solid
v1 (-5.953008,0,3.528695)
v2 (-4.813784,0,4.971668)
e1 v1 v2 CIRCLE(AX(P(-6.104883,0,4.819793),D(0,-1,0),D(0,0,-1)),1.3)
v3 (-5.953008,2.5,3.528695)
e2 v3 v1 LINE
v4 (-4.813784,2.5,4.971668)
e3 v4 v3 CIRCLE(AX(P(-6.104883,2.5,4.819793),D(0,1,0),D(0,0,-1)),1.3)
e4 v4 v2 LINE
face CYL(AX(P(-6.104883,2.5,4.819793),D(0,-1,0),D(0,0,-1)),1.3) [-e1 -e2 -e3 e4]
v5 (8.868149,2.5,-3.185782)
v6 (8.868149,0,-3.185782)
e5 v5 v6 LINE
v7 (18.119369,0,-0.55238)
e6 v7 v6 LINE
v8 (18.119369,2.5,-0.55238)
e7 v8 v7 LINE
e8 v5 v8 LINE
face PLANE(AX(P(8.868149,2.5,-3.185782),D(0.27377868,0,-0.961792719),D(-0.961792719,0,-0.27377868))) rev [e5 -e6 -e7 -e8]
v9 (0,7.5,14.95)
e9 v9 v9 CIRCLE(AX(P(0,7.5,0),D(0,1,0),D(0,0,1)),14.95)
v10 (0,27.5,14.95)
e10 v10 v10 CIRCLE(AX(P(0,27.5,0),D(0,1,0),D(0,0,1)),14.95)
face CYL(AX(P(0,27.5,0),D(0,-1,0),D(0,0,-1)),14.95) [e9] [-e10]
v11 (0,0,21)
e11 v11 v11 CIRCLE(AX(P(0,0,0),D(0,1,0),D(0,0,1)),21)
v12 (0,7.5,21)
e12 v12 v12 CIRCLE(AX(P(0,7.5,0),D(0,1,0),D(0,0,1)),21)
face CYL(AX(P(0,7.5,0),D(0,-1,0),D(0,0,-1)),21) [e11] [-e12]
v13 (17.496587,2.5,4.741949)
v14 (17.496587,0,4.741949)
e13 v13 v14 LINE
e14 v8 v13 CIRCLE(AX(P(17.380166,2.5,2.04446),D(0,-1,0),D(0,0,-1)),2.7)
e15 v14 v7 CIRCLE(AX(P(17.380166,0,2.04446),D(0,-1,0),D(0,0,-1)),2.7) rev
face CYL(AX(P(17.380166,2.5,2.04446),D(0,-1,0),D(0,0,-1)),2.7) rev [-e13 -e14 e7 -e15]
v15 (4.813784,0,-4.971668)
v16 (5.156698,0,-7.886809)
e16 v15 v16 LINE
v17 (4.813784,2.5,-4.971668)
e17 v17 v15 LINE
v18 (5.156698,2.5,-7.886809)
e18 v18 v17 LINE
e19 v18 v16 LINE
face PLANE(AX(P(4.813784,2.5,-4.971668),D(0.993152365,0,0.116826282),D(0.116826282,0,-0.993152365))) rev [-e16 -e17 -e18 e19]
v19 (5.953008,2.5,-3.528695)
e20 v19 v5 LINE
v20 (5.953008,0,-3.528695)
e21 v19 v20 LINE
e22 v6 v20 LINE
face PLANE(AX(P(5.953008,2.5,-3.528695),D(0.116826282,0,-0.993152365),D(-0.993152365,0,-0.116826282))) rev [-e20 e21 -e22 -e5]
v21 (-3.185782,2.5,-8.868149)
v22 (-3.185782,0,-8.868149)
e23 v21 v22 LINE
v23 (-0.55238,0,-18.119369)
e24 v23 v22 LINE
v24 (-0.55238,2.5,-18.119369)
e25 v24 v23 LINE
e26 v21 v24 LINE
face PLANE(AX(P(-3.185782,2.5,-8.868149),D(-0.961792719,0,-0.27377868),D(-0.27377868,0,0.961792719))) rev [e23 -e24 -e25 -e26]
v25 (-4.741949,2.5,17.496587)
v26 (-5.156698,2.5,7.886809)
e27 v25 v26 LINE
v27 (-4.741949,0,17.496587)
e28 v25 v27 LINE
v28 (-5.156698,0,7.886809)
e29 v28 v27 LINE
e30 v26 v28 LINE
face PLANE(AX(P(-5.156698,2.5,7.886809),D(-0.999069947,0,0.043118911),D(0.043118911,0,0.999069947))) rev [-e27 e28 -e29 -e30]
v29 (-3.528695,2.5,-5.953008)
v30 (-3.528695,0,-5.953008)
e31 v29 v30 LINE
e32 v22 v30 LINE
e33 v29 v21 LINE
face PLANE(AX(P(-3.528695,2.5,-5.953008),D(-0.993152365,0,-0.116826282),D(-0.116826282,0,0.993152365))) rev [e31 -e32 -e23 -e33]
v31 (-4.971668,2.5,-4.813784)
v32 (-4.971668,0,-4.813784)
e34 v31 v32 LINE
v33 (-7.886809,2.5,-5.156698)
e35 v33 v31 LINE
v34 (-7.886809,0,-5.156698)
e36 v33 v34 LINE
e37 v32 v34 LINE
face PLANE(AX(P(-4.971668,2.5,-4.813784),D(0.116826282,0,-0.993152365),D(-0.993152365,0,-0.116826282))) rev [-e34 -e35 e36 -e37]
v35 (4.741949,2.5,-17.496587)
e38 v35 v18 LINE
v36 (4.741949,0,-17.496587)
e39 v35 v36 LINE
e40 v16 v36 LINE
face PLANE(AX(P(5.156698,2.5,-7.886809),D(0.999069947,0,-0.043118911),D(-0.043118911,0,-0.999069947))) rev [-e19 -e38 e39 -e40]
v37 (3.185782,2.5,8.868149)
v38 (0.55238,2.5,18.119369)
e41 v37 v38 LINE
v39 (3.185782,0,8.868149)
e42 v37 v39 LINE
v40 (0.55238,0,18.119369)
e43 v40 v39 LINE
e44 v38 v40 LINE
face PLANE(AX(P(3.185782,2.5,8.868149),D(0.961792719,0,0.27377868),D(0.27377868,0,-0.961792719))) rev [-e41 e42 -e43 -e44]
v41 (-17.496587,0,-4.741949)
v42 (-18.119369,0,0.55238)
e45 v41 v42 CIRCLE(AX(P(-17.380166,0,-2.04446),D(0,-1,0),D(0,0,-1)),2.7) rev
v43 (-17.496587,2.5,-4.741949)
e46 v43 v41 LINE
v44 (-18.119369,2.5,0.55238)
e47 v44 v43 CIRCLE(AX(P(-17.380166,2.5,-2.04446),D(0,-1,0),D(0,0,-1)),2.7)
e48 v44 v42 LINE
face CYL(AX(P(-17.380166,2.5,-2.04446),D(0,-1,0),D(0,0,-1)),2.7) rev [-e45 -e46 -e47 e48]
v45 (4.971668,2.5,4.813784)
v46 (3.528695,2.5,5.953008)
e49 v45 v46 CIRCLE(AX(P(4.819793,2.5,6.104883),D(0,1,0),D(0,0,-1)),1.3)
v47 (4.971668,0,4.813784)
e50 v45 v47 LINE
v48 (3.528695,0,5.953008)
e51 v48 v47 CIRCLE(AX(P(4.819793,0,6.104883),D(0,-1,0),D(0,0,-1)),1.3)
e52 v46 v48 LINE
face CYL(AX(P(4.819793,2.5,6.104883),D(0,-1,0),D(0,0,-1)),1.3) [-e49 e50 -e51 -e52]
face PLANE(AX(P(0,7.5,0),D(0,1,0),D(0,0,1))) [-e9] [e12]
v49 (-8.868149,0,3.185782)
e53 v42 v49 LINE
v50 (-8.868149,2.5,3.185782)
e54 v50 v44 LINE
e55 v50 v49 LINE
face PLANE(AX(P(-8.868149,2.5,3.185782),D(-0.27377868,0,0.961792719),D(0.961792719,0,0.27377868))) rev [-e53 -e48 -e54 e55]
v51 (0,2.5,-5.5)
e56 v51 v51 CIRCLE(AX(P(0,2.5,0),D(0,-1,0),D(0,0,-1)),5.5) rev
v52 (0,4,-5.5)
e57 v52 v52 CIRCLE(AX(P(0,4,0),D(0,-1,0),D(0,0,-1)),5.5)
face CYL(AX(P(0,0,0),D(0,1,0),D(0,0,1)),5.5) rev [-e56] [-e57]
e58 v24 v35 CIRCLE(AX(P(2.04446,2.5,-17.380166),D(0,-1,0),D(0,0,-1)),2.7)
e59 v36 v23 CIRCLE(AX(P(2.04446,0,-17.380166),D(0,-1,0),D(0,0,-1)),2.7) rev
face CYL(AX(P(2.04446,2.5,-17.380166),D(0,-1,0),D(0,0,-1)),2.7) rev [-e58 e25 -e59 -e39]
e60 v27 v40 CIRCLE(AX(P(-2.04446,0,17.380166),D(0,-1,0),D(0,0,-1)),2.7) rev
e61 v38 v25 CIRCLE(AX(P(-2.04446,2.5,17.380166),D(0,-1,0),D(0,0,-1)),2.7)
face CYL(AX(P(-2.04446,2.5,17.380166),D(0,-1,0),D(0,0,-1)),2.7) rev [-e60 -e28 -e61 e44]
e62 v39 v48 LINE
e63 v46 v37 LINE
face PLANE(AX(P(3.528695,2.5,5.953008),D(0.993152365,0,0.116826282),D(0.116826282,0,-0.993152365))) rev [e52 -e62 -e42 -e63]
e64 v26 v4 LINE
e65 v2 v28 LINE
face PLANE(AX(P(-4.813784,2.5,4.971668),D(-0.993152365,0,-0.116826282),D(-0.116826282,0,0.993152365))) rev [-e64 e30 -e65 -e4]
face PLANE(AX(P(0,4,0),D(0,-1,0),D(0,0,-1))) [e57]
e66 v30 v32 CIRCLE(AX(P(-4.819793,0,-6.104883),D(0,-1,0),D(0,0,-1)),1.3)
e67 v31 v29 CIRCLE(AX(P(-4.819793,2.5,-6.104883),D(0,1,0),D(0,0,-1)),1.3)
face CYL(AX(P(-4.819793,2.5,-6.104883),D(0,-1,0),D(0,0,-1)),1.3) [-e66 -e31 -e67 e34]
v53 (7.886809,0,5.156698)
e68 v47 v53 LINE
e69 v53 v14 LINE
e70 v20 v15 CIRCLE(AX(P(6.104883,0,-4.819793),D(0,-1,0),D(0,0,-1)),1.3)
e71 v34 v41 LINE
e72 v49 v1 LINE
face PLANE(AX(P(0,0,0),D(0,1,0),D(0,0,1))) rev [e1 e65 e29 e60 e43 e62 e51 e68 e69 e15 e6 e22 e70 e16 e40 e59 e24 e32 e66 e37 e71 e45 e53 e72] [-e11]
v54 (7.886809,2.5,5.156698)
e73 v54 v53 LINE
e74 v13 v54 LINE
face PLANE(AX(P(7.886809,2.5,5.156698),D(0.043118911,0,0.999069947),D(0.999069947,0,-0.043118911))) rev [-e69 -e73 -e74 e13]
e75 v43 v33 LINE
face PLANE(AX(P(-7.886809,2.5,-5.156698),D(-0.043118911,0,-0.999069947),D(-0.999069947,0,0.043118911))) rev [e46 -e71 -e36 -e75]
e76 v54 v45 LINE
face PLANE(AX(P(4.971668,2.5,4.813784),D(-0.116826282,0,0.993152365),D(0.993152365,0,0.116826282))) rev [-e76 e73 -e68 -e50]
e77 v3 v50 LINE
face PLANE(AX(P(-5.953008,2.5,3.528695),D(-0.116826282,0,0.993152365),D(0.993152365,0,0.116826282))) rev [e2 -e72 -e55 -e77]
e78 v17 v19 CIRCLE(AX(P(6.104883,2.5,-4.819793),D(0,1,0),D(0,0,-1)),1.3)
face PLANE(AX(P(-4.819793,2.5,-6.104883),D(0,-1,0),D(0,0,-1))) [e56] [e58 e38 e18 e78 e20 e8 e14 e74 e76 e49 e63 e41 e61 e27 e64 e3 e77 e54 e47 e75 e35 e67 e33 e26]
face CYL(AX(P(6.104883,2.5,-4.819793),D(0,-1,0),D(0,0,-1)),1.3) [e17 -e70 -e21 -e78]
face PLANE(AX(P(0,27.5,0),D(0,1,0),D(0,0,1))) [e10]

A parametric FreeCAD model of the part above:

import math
import FreeCAD as App
import Part
import Sketcher

V = App.Vector
Q = App.Units.Quantity

doc = App.newDocument("Part")
body = doc.addObject("PartDesign::Body", "Body")

# Sketch on XZ plane
sketch1 = body.newObject("Sketcher::SketchObject", "Sketch")
sketch1.AttachmentSupport = (doc.getObject("XZ_Plane"), [""])
sketch1.MapMode = "FlatFace"
sketch1.addGeometry(Part.Circle(V(0, 0, 0), V(0, 0, 1), 21), False)
sketch1.addConstraint(Sketcher.Constraint("Coincident", 0, 3, -1, 1))
sketch1.addConstraint(Sketcher.Constraint("Diameter", 0, Q("42 mm")))
pad1 = body.newObject("PartDesign::Pad", "Pad")
pad1.Profile = sketch1
pad1.Length = 7.5
pad1.Reversed = True

# Sketch on XZ plane
sketch2 = body.newObject("Sketcher::SketchObject", "Sketch001")
sketch2.AttachmentSupport = (doc.getObject("XZ_Plane"), [""])
sketch2.MapMode = "FlatFace"
sketch2.AttachmentOffset = App.Placement(V(0, 0, -7.5), App.Rotation())
sketch2.addGeometry(Part.Circle(V(0, 0, 0), V(0, 0, 1), 15), False)
sketch2.addConstraint(Sketcher.Constraint("Coincident", 0, 3, -1, 1))
sketch2.addConstraint(Sketcher.Constraint("Diameter", 0, Q("29.9 mm")))
pad2 = body.newObject("PartDesign::Pad", "Pad001")
pad2.Profile = sketch2
pad2.Length = 20
pad2.Reversed = True

# Sketch on XZ plane
sketch3 = body.newObject("Sketcher::SketchObject", "Sketch002")
sketch3.AttachmentSupport = (doc.getObject("XZ_Plane"), [""])
sketch3.MapMode = "FlatFace"
sketch3.addGeometry(Part.LineSegment(V(-7.9, -5.2, 0), V(-5, -4.8, 0)), False)
sketch3.addGeometry(Part.ArcOfCircle(Part.Circle(V(-4.8, -6.1, 0), V(0, 0, 1), 1.3), math.radians(7), math.radians(97)), False)
sketch3.addGeometry(Part.LineSegment(V(-3.5, -6, 0), V(-3.2, -8.9, 0)), False)
sketch3.addGeometry(Part.LineSegment(V(-3.2, -8.9, 0), V(-0.6, -18.1, 0)), False)
sketch3.addGeometry(Part.ArcOfCircle(Part.Circle(V(2, -17.4, 0), V(0, 0, 1), 2.7), math.radians(-164), math.radians(-2)), False)
sketch3.addGeometry(Part.LineSegment(V(4.7, -17.5, 0), V(5.2, -7.9, 0)), False)
sketch3.addGeometry(Part.LineSegment(V(5.2, -7.9, 0), V(4.8, -5, 0)), False)
sketch3.addGeometry(Part.ArcOfCircle(Part.Circle(V(6.1, -4.8, 0), V(0, 0, 1), 1.3), math.radians(97), math.radians(187)), False)
sketch3.addGeometry(Part.LineSegment(V(6, -3.5, 0), V(8.9, -3.2, 0)), False)
sketch3.addGeometry(Part.LineSegment(V(8.9, -3.2, 0), V(18.1, -0.6, 0)), False)
sketch3.addGeometry(Part.ArcOfCircle(Part.Circle(V(17.4, 2, 0), V(0, 0, 1), 2.7), math.radians(-74), math.radians(88)), False)
sketch3.addGeometry(Part.LineSegment(V(17.5, 4.7, 0), V(7.9, 5.2, 0)), False)
sketch3.addGeometry(Part.LineSegment(V(7.9, 5.2, 0), V(5, 4.8, 0)), False)
sketch3.addGeometry(Part.ArcOfCircle(Part.Circle(V(4.8, 6.1, 0), V(0, 0, 1), 1.3), math.radians(-173), math.radians(-83)), False)
sketch3.addGeometry(Part.LineSegment(V(3.5, 6, 0), V(3.2, 8.9, 0)), False)
sketch3.addGeometry(Part.LineSegment(V(3.2, 8.9, 0), V(0.6, 18.1, 0)), False)
sketch3.addGeometry(Part.ArcOfCircle(Part.Circle(V(-2, 17.4, 0), V(0, 0, 1), 2.7), math.radians(16), math.radians(178)), False)
sketch3.addGeometry(Part.LineSegment(V(-4.7, 17.5, 0), V(-5.2, 7.9, 0)), False)
sketch3.addGeometry(Part.LineSegment(V(-5.2, 7.9, 0), V(-4.8, 5, 0)), False)
sketch3.addGeometry(Part.ArcOfCircle(Part.Circle(V(-6.1, 4.8, 0), V(0, 0, 1), 1.3), math.radians(-83), math.radians(7)), False)
sketch3.addGeometry(Part.LineSegment(V(-6, 3.5, 0), V(-8.9, 3.2, 0)), False)
sketch3.addGeometry(Part.LineSegment(V(-8.9, 3.2, 0), V(-18.1, 0.6, 0)), False)
sketch3.addGeometry(Part.ArcOfCircle(Part.Circle(V(-17.4, -2, 0), V(0, 0, 1), 2.7), math.radians(106), math.radians(268)), False)
sketch3.addGeometry(Part.LineSegment(V(-17.5, -4.7, 0), V(-7.9, -5.2, 0)), False)
sketch3.addConstraint(Sketcher.Constraint("Tangent", 0, 2, 1, 2))
sketch3.addConstraint(Sketcher.Constraint("Tangent", 1, 1, 2, 1))
sketch3.addConstraint(Sketcher.Constraint("Coincident", 2, 2, 3, 1))
sketch3.addConstraint(Sketcher.Constraint("Tangent", 3, 2, 4, 1))
sketch3.addConstraint(Sketcher.Constraint("Tangent", 4, 2, 5, 1))
sketch3.addConstraint(Sketcher.Constraint("Coincident", 5, 2, 6, 1))
sketch3.addConstraint(Sketcher.Constraint("Tangent", 6, 2, 7, 2))
sketch3.addConstraint(Sketcher.Constraint("Tangent", 7, 1, 8, 1))
sketch3.addConstraint(Sketcher.Constraint("Coincident", 8, 2, 9, 1))
sketch3.addConstraint(Sketcher.Constraint("Tangent", 9, 2, 10, 1))
sketch3.addConstraint(Sketcher.Constraint("Tangent", 10, 2, 11, 1))
sketch3.addConstraint(Sketcher.Constraint("Coincident", 11, 2, 12, 1))
sketch3.addConstraint(Sketcher.Constraint("Tangent", 12, 2, 13, 2))
sketch3.addConstraint(Sketcher.Constraint("Tangent", 13, 1, 14, 1))
sketch3.addConstraint(Sketcher.Constraint("Coincident", 14, 2, 15, 1))
sketch3.addConstraint(Sketcher.Constraint("Tangent", 15, 2, 16, 1))
sketch3.addConstraint(Sketcher.Constraint("Tangent", 16, 2, 17, 1))
sketch3.addConstraint(Sketcher.Constraint("Coincident", 17, 2, 18, 1))
sketch3.addConstraint(Sketcher.Constraint("Tangent", 18, 2, 19, 2))
sketch3.addConstraint(Sketcher.Constraint("Tangent", 19, 1, 20, 1))
sketch3.addConstraint(Sketcher.Constraint("Coincident", 20, 2, 21, 1))
sketch3.addConstraint(Sketcher.Constraint("Tangent", 21, 2, 22, 1))
sketch3.addConstraint(Sketcher.Constraint("Tangent", 22, 2, 23, 1))
sketch3.addConstraint(Sketcher.Constraint("Coincident", 23, 2, 0, 1))
sketch3.addConstraint(Sketcher.Constraint("Equal", 1, 7))
sketch3.addConstraint(Sketcher.Constraint("Equal", 4, 10))
sketch3.addConstraint(Sketcher.Constraint("Equal", 7, 13))
sketch3.addConstraint(Sketcher.Constraint("Equal", 10, 16))
sketch3.addConstraint(Sketcher.Constraint("Equal", 13, 19))
sketch3.addConstraint(Sketcher.Constraint("Equal", 16, 22))
sketch3.addConstraint(Sketcher.Constraint("Symmetric", 1, 3, 13, 3, -1, 1))
sketch3.addConstraint(Sketcher.Constraint("Symmetric", 4, 3, 16, 3, -1, 1))
sketch3.addConstraint(Sketcher.Constraint("Symmetric", 7, 3, 19, 3, -1, 1))
sketch3.addConstraint(Sketcher.Constraint("Symmetric", 10, 3, 22, 3, -1, 1))
sketch3.addConstraint(Sketcher.Constraint("Symmetric", 2, 2, 14, 2, -1, 1))
sketch3.addConstraint(Sketcher.Constraint("Symmetric", 5, 2, 17, 2, -1, 1))
sketch3.addConstraint(Sketcher.Constraint("Symmetric", 8, 2, 20, 2, -1, 1))
sketch3.addConstraint(Sketcher.Constraint("Symmetric", 11, 2, 23, 2, -1, 1))
sketch3.addConstraint(Sketcher.Constraint("Perpendicular", 0, 2))
sketch3.addConstraint(Sketcher.Constraint("Parallel", 2, 6))
sketch3.addConstraint(Sketcher.Constraint("Perpendicular", 6, 8))
sketch3.addConstraint(Sketcher.Constraint("Perpendicular", 3, 9))
sketch3.addConstraint(Sketcher.Constraint("Perpendicular", 5, 11))
sketch3.addConstraint(Sketcher.Constraint("Equal", 0, 2))
sketch3.addConstraint(Sketcher.Constraint("Equal", 3, 5))
sketch3.addConstraint(Sketcher.Constraint("Equal", 2, 6))
sketch3.addConstraint(Sketcher.Constraint("Equal", 6, 8))
sketch3.addConstraint(Sketcher.Constraint("Equal", 5, 9))
sketch3.addConstraint(Sketcher.Constraint("Equal", 9, 11))
sketch3.addConstraint(Sketcher.Constraint("Radius", 1, Q("1.3 mm")))
sketch3.addConstraint(Sketcher.Constraint("Radius", 4, Q("2.7 mm")))
sketch3.addConstraint(Sketcher.Constraint("DistanceY", 1, 3, 0, 2, Q("1.291098 mm")))
sketch3.addConstraint(Sketcher.Constraint("DistanceX", 22, 3, 0, 2, Q("12.408499 mm")))
sketch3.addConstraint(Sketcher.Constraint("DistanceY", 1, 1, 19, 3, Q("10.772802 mm")))
sketch3.addConstraint(Sketcher.Constraint("DistanceX", 2, 2, 3, 2, Q("2.633402 mm")))
sketch3.addConstraint(Sketcher.Constraint("DistanceY", 5, 2, 1, 1, Q("1.9338 mm")))
pocket1 = body.newObject("PartDesign::Pocket", "Pocket")
pocket1.Profile = sketch3
pocket1.Type = "TwoLengths"
pocket1.Length = 41.475301
pocket1.Length2 = 2.5
pocket1.Reversed = True

# Sketch on XZ plane
sketch4 = body.newObject("Sketcher::SketchObject", "Sketch003")
sketch4.AttachmentSupport = (doc.getObject("XZ_Plane"), [""])
sketch4.MapMode = "FlatFace"
sketch4.AttachmentOffset = App.Placement(V(0, 0, -2.5), App.Rotation())
sketch4.addGeometry(Part.Circle(V(0, 0, 0), V(0, 0, 1), 6), False)
sketch4.addConstraint(Sketcher.Constraint("Coincident", 0, 3, -1, 1))
sketch4.addConstraint(Sketcher.Constraint("Diameter", 0, Q("11 mm")))
pocket2 = body.newObject("PartDesign::Pocket", "Pocket001")
pocket2.Profile = sketch4
pocket2.Type = "TwoLengths"
pocket2.Length = 39.820098
pocket2.Length2 = 1.5
pocket2.Reversed = True

doc.recompute()
